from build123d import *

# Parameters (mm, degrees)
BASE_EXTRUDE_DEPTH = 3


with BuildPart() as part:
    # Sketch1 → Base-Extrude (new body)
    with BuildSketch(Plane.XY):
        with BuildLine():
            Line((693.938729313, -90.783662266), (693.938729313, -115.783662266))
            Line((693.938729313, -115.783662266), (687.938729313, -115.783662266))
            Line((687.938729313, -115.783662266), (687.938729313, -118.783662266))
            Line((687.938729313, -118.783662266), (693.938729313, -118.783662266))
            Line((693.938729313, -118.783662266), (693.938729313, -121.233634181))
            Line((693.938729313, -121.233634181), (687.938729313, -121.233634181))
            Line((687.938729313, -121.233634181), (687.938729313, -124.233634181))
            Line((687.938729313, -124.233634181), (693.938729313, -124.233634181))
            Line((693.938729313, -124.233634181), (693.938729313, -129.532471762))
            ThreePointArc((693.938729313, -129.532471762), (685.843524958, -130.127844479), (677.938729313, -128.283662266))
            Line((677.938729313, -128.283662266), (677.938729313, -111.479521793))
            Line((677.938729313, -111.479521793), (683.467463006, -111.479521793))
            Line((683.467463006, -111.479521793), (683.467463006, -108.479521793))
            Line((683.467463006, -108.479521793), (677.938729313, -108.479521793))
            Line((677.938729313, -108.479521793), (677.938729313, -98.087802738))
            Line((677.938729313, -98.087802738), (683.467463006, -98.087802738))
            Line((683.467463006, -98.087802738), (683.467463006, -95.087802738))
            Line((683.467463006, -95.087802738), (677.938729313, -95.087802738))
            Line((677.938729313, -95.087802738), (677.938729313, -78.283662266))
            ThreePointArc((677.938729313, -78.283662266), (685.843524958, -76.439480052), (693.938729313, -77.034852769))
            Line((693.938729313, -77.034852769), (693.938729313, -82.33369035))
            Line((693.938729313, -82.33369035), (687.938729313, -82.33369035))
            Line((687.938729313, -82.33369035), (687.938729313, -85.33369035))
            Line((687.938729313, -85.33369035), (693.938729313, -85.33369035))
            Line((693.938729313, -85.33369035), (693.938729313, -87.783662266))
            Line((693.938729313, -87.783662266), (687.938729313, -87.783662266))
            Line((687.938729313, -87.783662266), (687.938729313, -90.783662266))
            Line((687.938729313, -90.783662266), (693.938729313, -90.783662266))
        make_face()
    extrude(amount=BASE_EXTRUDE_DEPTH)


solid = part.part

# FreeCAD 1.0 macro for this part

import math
import FreeCAD as App
import Part
import Sketcher

V = App.Vector
Q = App.Units.Quantity

doc = App.newDocument("Part")
params = doc.addObject("Spreadsheet::Sheet", "Params")
for row, (alias, value) in enumerate([
    ("sketch1_width", "6 mm"),
    ("sketch1_height", "25 mm"),
    ("sketch1_height2", "3 mm"),
    ("pad1_length", "3 mm"),
], start=1):
    params.set(f"A{row}", alias)
    params.set(f"B{row}", "=" + value)
    params.setAlias(f"B{row}", alias)

body = doc.addObject("PartDesign::Body", "Body")

# Sketch on XY plane
sketch1 = doc.addObject("Sketcher::SketchObject", "Sketch")
body.addObject(sketch1)
sketch1.AttachmentSupport = (doc.XY_Plane, [""])
sketch1.MapMode = "FlatFace"
sketch1.addGeometry([
    Part.LineSegment(V(693.938729, -115.783662, 0), V(693.938729, -90.783662, 0)),  # 0
    Part.LineSegment(V(693.938729, -90.783662, 0), V(687.938729, -90.783662, 0)),  # 1
    Part.LineSegment(V(687.938729, -90.783662, 0), V(687.938729, -87.783662, 0)),  # 2
    Part.LineSegment(V(687.938729, -87.783662, 0), V(693.938729, -87.783662, 0)),  # 3
    Part.LineSegment(V(693.938729, -87.783662, 0), V(693.938729, -85.33369, 0)),  # 4
    Part.LineSegment(V(693.938729, -85.33369, 0), V(687.938729, -85.33369, 0)),  # 5
    Part.LineSegment(V(687.938729, -85.33369, 0), V(687.938729, -82.33369, 0)),  # 6
    Part.LineSegment(V(687.938729, -82.33369, 0), V(693.938729, -82.33369, 0)),  # 7
    Part.LineSegment(V(693.938729, -82.33369, 0), V(693.938729, -77.034853, 0)),  # 8
    Part.ArcOfCircle(Part.Circle(V(687.938729, -103.283662, 0), V(0, 0, 1), 26.925824), math.radians(77.124434), math.radians(111.801409)),  # 9
    Part.LineSegment(V(677.938729, -78.283662, 0), V(677.938729, -95.087803, 0)),  # 10
    Part.LineSegment(V(677.938729, -95.087803, 0), V(683.467463, -95.087803, 0)),  # 11
    Part.LineSegment(V(683.467463, -95.087803, 0), V(683.467463, -98.087803, 0)),  # 12
    Part.LineSegment(V(683.467463, -98.087803, 0), V(677.938729, -98.087803, 0)),  # 13
    Part.LineSegment(V(677.938729, -98.087803, 0), V(677.938729, -108.479522, 0)),  # 14
    Part.LineSegment(V(677.938729, -108.479522, 0), V(683.467463, -108.479522, 0)),  # 15
    Part.LineSegment(V(683.467463, -108.479522, 0), V(683.467463, -111.479522, 0)),  # 16
    Part.LineSegment(V(683.467463, -111.479522, 0), V(677.938729, -111.479522, 0)),  # 17
    Part.LineSegment(V(677.938729, -111.479522, 0), V(677.938729, -128.283662, 0)),  # 18
    Part.ArcOfCircle(Part.Circle(V(687.938729, -103.283662, 0), V(0, 0, 1), 26.925824), math.radians(-111.801409), math.radians(-77.124434)),  # 19
    Part.LineSegment(V(693.938729, -129.532472, 0), V(693.938729, -124.233634, 0)),  # 20
    Part.LineSegment(V(693.938729, -124.233634, 0), V(687.938729, -124.233634, 0)),  # 21
    Part.LineSegment(V(687.938729, -124.233634, 0), V(687.938729, -121.233634, 0)),  # 22
    Part.LineSegment(V(687.938729, -121.233634, 0), V(693.938729, -121.233634, 0)),  # 23
    Part.LineSegment(V(693.938729, -121.233634, 0), V(693.938729, -118.783662, 0)),  # 24
    Part.LineSegment(V(693.938729, -118.783662, 0), V(687.938729, -118.783662, 0)),  # 25
    Part.LineSegment(V(687.938729, -118.783662, 0), V(687.938729, -115.783662, 0)),  # 26
    Part.LineSegment(V(687.938729, -115.783662, 0), V(693.938729, -115.783662, 0)),  # 27
], False)
sketch1.addConstraint([
    Sketcher.Constraint("Coincident", 0, 2, 1, 1),
    Sketcher.Constraint("Coincident", 1, 2, 2, 1),
    Sketcher.Constraint("Coincident", 2, 2, 3, 1),
    Sketcher.Constraint("Coincident", 3, 2, 4, 1),
    Sketcher.Constraint("Coincident", 4, 2, 5, 1),
    Sketcher.Constraint("Coincident", 5, 2, 6, 1),
    Sketcher.Constraint("Coincident", 6, 2, 7, 1),
    Sketcher.Constraint("Coincident", 7, 2, 8, 1),
    Sketcher.Constraint("Coincident", 8, 2, 9, 1),
    Sketcher.Constraint("Coincident", 9, 2, 10, 1),
    Sketcher.Constraint("Coincident", 10, 2, 11, 1),
    Sketcher.Constraint("Coincident", 11, 2, 12, 1),
    Sketcher.Constraint("Coincident", 12, 2, 13, 1),
    Sketcher.Constraint("Coincident", 13, 2, 14, 1),
    Sketcher.Constraint("Coincident", 14, 2, 15, 1),
    Sketcher.Constraint("Coincident", 15, 2, 16, 1),
    Sketcher.Constraint("Coincident", 16, 2, 17, 1),
    Sketcher.Constraint("Coincident", 17, 2, 18, 1),
    Sketcher.Constraint("Coincident", 18, 2, 19, 1),
    Sketcher.Constraint("Coincident", 19, 2, 20, 1),
    Sketcher.Constraint("Coincident", 20, 2, 21, 1),
    Sketcher.Constraint("Coincident", 21, 2, 22, 1),
    Sketcher.Constraint("Coincident", 22, 2, 23, 1),
    Sketcher.Constraint("Coincident", 23, 2, 24, 1),
    Sketcher.Constraint("Coincident", 24, 2, 25, 1),
    Sketcher.Constraint("Coincident", 25, 2, 26, 1),
    Sketcher.Constraint("Coincident", 26, 2, 27, 1),
    Sketcher.Constraint("Coincident", 27, 2, 0, 1),
    Sketcher.Constraint("Vertical", 0),
    Sketcher.Constraint("Horizontal", 1),
    Sketcher.Constraint("Vertical", 2),
    Sketcher.Constraint("Horizontal", 3),
    Sketcher.Constraint("Vertical", 4),
    Sketcher.Constraint("Horizontal", 5),
    Sketcher.Constraint("Vertical", 6),
    Sketcher.Constraint("Horizontal", 7),
    Sketcher.Constraint("Vertical", 8),
    Sketcher.Constraint("Vertical", 10),
    Sketcher.Constraint("Horizontal", 11),
    Sketcher.Constraint("Vertical", 12),
    Sketcher.Constraint("Horizontal", 13),
    Sketcher.Constraint("Vertical", 14),
    Sketcher.Constraint("Horizontal", 15),
    Sketcher.Constraint("Vertical", 16),
    Sketcher.Constraint("Horizontal", 17),
    Sketcher.Constraint("Vertical", 18),
    Sketcher.Constraint("Vertical", 20),
    Sketcher.Constraint("Horizontal", 21),
    Sketcher.Constraint("Vertical", 22),
    Sketcher.Constraint("Horizontal", 23),
    Sketcher.Constraint("Vertical", 24),
    Sketcher.Constraint("Horizontal", 25),
    Sketcher.Constraint("Vertical", 26),
    Sketcher.Constraint("Horizontal", 27),
    Sketcher.Constraint("Coincident", 19, 3, 9, 3),
    Sketcher.Constraint("Equal", 9, 19),
    Sketcher.Constraint("Vertical", 19, 3, 1, 2),
    Sketcher.Constraint("Vertical", 0, 2, 3, 2),
    Sketcher.Constraint("Vertical", 2, 2, 5, 2),
    Sketcher.Constraint("Vertical", 4, 2, 7, 2),
    Sketcher.Constraint("Vertical", 10, 2, 13, 2),
    Sketcher.Constraint("Vertical", 12, 2, 15, 2),
    Sketcher.Constraint("Vertical", 14, 2, 17, 2),
    Sketcher.Constraint("Vertical", 8, 2, 19, 2),
    Sketcher.Constraint("Vertical", 6, 2, 21, 2),
    Sketcher.Constraint("Vertical", 20, 2, 23, 2),
    Sketcher.Constraint("Vertical", 22, 2, 25, 2),
    Sketcher.Constraint("Equal", 2, 6),
    Sketcher.Constraint("Equal", 6, 12),
    Sketcher.Constraint("Equal", 12, 16),
    Sketcher.Constraint("Equal", 10, 18),
    Sketcher.Constraint("Equal", 8, 20),
    Sketcher.Constraint("Equal", 16, 22),
    Sketcher.Constraint("Equal", 4, 24),
    Sketcher.Constraint("Equal", 22, 26),
    Sketcher.Constraint("DistanceX", 1, 2, 1, 1, Q("6 mm")),
    Sketcher.Constraint("DistanceY", 0, 1, 0, 2, Q("25 mm")),
    Sketcher.Constraint("DistanceY", 2, 1, 2, 2, Q("3 mm")),
    Sketcher.Constraint("DistanceX", 9, 2, 6, 2, Q("10 mm")),
    Sketcher.Constraint("DistanceY", 18, 2, 19, 3, Q("25 mm")),
    Sketcher.Constraint("DistanceY", 4, 1, 4, 2, Q("2.449972 mm")),
    Sketcher.Constraint("DistanceY", 10, 2, 10, 1, Q("16.80414 mm")),
    Sketcher.Constraint("DistanceX", 11, 1, 11, 2, Q("5.528734 mm")),
    Sketcher.Constraint("DistanceX", -1, 1, 9, 3, Q("687.938729 mm")),
    Sketcher.Constraint("DistanceY", 4, 2, -1, 1, Q("85.33369 mm")),
])
sketch1.setExpression("Constraints[75]", "Params.sketch1_width")
sketch1.setExpression("Constraints[76]", "Params.sketch1_height")
sketch1.setExpression("Constraints[77]", "Params.sketch1_height2")
pad1 = doc.addObject("PartDesign::Pad", "Pad")
body.addObject(pad1)
pad1.Profile = sketch1
pad1.setExpression("Length", "Params.pad1_length")

doc.recompute()
